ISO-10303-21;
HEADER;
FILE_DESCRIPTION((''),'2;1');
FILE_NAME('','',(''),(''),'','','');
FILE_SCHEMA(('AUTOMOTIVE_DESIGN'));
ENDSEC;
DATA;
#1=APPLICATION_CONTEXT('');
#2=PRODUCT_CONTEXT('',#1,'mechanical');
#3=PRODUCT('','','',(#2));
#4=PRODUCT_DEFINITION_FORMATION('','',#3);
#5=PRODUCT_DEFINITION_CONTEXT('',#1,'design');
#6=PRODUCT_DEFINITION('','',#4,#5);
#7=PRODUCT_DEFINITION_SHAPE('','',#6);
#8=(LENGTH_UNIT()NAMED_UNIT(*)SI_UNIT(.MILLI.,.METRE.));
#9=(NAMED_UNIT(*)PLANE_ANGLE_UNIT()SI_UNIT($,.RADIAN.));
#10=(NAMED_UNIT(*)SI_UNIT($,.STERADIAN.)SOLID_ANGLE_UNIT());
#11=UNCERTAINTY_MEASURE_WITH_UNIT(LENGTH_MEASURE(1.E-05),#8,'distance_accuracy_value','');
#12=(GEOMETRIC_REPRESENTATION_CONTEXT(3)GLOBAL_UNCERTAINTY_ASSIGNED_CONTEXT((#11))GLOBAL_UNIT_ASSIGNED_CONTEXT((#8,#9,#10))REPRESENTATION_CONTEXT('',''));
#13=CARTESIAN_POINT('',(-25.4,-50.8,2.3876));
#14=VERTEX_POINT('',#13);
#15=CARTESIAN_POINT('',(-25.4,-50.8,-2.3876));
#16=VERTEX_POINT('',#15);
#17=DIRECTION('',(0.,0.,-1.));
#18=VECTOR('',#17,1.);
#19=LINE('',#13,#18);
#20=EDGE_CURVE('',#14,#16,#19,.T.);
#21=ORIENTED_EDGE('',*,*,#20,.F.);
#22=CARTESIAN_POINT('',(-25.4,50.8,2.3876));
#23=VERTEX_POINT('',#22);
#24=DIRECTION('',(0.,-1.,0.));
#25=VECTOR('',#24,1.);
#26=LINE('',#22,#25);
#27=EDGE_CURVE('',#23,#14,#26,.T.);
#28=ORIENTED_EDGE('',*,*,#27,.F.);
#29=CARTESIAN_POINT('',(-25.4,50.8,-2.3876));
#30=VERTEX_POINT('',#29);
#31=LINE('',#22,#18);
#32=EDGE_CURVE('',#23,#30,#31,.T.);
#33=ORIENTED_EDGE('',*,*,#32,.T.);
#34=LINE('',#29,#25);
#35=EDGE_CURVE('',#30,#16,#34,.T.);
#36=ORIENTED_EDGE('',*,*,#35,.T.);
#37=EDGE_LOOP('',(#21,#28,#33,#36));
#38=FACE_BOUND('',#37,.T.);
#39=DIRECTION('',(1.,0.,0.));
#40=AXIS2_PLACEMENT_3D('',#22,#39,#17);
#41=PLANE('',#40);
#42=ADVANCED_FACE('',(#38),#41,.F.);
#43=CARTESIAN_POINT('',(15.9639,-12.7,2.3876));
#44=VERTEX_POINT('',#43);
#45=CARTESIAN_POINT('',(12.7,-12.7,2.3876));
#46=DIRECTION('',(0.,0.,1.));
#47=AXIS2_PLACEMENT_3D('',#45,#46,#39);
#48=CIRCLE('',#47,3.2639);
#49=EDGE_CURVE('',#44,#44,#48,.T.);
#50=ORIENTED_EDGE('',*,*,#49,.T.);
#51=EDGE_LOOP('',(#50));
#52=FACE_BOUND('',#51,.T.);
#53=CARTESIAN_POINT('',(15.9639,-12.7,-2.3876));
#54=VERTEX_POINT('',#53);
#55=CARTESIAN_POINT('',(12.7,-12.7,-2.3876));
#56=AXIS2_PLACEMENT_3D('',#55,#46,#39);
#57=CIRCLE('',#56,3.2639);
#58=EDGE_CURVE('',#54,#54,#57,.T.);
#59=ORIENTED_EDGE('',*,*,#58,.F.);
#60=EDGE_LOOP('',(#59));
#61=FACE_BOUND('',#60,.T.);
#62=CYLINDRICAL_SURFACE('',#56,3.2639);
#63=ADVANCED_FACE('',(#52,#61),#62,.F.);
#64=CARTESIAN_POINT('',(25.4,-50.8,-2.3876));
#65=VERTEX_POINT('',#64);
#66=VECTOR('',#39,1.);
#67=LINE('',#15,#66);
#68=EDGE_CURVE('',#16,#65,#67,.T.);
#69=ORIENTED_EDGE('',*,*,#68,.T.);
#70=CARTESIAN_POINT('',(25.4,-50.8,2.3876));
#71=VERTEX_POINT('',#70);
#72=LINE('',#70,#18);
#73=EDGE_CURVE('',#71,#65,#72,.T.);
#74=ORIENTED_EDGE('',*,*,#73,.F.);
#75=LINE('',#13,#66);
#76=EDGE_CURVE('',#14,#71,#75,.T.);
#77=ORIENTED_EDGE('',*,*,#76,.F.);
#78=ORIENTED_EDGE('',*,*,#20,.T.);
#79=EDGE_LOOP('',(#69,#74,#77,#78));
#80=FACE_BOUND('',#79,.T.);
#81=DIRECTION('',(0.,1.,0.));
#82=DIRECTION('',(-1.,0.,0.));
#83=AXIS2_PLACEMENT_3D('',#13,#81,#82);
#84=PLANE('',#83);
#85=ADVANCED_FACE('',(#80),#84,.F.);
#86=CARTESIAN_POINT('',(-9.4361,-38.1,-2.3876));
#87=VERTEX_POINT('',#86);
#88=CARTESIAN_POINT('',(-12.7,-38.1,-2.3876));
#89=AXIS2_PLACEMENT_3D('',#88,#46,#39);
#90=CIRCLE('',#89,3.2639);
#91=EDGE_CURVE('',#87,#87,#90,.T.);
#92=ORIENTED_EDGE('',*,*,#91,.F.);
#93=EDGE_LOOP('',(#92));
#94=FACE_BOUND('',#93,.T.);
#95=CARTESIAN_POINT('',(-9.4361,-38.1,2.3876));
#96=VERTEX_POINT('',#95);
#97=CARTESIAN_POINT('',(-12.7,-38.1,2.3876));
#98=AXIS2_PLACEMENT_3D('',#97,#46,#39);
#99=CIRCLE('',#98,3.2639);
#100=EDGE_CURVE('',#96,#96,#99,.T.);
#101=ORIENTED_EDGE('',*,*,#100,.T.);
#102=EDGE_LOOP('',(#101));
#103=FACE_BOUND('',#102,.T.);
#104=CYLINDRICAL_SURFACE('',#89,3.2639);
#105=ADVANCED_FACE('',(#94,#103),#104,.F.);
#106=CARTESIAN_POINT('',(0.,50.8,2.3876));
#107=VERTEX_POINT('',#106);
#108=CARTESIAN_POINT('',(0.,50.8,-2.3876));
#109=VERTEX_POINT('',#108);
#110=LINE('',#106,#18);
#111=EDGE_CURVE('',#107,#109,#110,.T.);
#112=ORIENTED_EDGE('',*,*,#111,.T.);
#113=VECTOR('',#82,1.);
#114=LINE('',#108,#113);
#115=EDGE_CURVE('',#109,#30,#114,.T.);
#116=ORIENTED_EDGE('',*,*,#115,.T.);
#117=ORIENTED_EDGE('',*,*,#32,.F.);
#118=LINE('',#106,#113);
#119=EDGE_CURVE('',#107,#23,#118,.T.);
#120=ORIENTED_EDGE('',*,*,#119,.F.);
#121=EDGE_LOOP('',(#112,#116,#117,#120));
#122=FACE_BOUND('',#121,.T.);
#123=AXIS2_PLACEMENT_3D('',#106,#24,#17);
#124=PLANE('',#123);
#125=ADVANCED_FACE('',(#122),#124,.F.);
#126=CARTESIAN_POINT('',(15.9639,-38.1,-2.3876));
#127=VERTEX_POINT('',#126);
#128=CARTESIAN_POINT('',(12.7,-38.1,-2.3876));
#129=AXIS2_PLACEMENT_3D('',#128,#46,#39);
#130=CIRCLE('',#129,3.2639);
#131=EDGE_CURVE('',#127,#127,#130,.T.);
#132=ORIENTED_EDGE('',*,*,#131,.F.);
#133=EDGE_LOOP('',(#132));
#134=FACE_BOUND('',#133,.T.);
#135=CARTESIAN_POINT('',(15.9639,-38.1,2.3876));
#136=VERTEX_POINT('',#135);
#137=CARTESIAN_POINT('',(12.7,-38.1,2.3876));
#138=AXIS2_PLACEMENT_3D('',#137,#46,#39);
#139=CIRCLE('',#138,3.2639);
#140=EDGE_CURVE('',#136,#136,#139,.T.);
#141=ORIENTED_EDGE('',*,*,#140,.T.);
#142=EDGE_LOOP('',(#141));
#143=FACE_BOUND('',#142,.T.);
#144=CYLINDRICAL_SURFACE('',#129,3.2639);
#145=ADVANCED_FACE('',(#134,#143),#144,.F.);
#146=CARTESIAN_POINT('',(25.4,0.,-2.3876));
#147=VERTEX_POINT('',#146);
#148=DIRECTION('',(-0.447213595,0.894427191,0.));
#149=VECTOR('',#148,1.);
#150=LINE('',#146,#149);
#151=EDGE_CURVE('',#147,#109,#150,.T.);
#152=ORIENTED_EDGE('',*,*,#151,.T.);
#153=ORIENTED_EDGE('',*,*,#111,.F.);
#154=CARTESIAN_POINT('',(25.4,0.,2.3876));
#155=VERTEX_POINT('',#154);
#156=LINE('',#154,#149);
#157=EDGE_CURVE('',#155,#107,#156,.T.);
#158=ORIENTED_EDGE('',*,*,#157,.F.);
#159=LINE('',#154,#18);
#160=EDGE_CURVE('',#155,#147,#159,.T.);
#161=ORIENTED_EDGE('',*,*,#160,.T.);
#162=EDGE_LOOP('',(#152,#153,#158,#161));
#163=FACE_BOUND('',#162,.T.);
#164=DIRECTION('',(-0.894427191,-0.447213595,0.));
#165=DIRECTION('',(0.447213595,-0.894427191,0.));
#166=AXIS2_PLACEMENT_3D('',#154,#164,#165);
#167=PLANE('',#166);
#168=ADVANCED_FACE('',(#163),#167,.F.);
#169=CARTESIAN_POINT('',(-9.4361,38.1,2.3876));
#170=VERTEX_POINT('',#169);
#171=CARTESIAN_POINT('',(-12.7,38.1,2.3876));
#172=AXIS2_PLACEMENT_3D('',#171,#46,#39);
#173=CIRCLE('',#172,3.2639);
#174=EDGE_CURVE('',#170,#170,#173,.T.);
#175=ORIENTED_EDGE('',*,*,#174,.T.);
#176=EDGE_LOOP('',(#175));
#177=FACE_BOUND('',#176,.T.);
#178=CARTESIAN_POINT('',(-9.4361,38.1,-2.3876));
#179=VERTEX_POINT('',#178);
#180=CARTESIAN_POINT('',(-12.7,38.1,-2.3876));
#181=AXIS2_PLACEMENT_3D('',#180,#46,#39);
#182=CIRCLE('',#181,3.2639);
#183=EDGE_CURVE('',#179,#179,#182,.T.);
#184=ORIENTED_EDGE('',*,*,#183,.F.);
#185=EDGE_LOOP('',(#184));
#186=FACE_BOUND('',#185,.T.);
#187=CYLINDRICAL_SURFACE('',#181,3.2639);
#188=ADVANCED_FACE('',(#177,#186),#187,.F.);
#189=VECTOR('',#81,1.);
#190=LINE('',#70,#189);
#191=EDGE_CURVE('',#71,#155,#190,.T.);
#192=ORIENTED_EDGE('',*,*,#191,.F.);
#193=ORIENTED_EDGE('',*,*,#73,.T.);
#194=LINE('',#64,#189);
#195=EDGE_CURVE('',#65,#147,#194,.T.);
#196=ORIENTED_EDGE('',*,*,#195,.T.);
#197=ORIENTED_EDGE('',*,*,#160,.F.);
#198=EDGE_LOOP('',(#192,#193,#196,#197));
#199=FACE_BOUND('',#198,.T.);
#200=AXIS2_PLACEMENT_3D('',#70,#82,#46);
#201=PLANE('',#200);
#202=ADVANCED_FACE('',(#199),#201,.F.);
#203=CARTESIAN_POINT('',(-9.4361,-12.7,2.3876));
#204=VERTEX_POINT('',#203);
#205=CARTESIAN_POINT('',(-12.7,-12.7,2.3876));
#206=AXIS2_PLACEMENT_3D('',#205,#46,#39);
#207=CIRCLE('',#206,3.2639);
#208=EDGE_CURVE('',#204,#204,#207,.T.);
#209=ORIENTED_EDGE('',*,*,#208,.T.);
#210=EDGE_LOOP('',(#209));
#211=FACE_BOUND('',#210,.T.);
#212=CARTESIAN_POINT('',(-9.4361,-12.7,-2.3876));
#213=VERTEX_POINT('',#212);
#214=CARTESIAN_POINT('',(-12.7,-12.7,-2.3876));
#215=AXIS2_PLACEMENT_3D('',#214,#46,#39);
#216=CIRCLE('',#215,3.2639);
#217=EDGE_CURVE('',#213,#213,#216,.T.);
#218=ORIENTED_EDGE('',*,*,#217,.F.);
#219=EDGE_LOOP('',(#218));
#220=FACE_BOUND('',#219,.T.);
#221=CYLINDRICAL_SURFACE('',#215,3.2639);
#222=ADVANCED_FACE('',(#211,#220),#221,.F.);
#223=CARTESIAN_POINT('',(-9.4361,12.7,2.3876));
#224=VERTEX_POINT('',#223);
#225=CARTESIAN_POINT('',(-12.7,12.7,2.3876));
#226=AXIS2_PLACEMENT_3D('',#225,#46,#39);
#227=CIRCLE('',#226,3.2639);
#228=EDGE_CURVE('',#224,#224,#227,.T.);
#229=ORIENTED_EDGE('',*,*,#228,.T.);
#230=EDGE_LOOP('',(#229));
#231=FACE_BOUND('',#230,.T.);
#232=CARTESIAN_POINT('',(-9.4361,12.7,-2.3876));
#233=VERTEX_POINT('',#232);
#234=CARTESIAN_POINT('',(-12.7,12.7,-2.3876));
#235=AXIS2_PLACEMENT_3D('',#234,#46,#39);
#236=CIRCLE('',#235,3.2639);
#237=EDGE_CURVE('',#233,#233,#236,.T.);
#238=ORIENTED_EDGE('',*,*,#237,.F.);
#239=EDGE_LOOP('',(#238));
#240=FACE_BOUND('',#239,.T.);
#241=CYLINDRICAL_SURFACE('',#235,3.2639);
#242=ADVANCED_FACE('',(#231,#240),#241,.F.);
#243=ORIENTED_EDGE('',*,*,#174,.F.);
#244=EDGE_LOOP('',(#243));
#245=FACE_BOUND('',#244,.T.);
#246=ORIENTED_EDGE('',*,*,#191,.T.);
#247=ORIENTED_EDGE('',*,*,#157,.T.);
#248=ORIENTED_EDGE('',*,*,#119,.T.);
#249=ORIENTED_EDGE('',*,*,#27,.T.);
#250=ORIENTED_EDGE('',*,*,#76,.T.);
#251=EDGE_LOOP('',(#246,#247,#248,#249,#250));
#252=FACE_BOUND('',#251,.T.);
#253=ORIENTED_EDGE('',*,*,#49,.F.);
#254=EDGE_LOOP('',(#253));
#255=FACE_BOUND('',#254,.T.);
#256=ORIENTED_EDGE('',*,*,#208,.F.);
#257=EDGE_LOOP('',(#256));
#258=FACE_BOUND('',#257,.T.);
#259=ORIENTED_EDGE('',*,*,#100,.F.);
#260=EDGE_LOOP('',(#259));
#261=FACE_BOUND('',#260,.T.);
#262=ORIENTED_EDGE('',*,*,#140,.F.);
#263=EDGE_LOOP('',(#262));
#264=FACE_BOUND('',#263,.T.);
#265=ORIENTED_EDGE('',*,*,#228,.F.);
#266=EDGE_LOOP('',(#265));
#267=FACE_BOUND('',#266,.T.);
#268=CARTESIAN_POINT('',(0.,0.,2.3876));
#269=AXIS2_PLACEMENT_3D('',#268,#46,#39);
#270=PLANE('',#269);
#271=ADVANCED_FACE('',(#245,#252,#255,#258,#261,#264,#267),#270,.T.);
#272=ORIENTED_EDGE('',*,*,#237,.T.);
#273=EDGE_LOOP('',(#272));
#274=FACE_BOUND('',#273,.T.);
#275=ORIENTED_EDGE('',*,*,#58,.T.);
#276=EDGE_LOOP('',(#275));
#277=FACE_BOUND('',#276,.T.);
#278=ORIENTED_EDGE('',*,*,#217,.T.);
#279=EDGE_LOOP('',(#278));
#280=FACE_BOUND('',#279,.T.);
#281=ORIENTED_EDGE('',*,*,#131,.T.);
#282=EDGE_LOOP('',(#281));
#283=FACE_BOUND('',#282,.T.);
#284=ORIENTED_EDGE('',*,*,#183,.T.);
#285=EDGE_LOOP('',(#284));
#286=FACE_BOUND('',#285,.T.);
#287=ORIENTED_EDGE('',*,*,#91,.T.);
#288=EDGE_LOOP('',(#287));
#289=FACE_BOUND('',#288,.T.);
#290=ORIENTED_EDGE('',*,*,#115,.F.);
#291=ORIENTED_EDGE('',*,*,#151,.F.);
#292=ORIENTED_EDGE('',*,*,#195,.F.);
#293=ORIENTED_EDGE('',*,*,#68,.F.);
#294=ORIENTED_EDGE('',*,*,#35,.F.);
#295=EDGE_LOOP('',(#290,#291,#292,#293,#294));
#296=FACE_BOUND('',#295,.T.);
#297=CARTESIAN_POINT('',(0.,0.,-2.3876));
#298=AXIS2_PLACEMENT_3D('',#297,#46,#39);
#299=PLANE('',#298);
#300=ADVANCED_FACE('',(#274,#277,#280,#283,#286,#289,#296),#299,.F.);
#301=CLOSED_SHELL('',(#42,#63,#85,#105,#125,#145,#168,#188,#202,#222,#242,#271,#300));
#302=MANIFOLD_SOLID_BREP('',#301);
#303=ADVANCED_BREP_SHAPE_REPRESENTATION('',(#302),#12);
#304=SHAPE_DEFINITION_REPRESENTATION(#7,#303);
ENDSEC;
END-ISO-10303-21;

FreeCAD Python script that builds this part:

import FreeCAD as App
import Part
import Sketcher

V = App.Vector
Q = App.Units.Quantity


def add_polygon(sketch, points):
    """Adds a closed chain of lines whose ends are joined by coincident constraints."""
    first, n = sketch.GeometryCount, len(points)
    for a, b in zip(points, points[1:] + points[:1]):
        sketch.addGeometry(Part.LineSegment(App.Vector(*a, 0), App.Vector(*b, 0)), False)
    for i in range(n):
        sketch.addConstraint(Sketcher.Constraint("Coincident", first + i, 2, first + (i + 1) % n, 1))

doc = App.newDocument("Part")
params = doc.addObject("Spreadsheet::Sheet", "Params")
for row, (alias, value) in enumerate([
    ("sketch1_width", "1 in"),
    ("pad1_length", "0.094 in"),
    ("pad1_length2", "0.094 in"),
    ("sketch2_diameter", "0.257 in"),
], start=1):
    params.set(f"A{row}", alias)
    params.set(f"B{row}", "=" + value)
    params.setAlias(f"B{row}", alias)

body = doc.addObject("PartDesign::Body", "Body")

# Sketch on XY plane
sketch1 = body.newObject("Sketcher::SketchObject", "Sketch")
sketch1.AttachmentSupport = (doc.getObject("XY_Plane"), [""])
sketch1.MapMode = "FlatFace"
add_polygon(sketch1, [(0, 51), (-25, 51), (-25, -51), (25, -51), (25, 0)])  # lines 0-4
sketch1.addConstraint(Sketcher.Constraint("Horizontal", 0))
sketch1.addConstraint(Sketcher.Constraint("Vertical", 1))
sketch1.addConstraint(Sketcher.Constraint("Horizontal", 2))
sketch1.addConstraint(Sketcher.Constraint("Vertical", 3))
sketch1.addConstraint(Sketcher.Constraint("Symmetric", 0, 2, 2, 2, -1, 1))
sketch1.addConstraint(Sketcher.Constraint("PointOnObject", 3, 2, -1))
sketch1.addConstraint(Sketcher.Constraint("PointOnObject", 4, 2, -2))
sketch1.addConstraint(Sketcher.Constraint("Equal", 2, 3))
sketch1.addConstraint(Sketcher.Constraint("DistanceX", 0, 2, 0, 1, Q("1 in")))
sketch1.setExpression("Constraints[13]", "Params.sketch1_width")
pad1 = body.newObject("PartDesign::Pad", "Pad")
pad1.Profile = sketch1
pad1.Type = "TwoLengths"
pad1.setExpression("Length", "Params.pad1_length")
pad1.setExpression("Length2", "Params.pad1_length2")

# Sketch on XY plane
sketch2 = body.newObject("Sketcher::SketchObject", "Sketch001")
sketch2.AttachmentSupport = (doc.getObject("XY_Plane"), [""])
sketch2.MapMode = "FlatFace"
sketch2.AttachmentOffset = App.Placement(V(0, 0, 0.094 * 25.4), App.Rotation())
sketch2.addGeometry(Part.Circle(V(-12.7, -38.1, 0), V(0, 0, 1), 3.3), False)
sketch2.addGeometry(Part.Circle(V(12.7, -38.1, 0), V(0, 0, 1), 3.3), False)
sketch2.addGeometry(Part.Circle(V(12.7, -12.7, 0), V(0, 0, 1), 3.3), False)
sketch2.addGeometry(Part.Circle(V(-12.7, -12.7, 0), V(0, 0, 1), 3.3), False)
sketch2.addGeometry(Part.Circle(V(-12.7, 12.7, 0), V(0, 0, 1), 3.3), False)
sketch2.addGeometry(Part.Circle(V(-12.7, 38.1, 0), V(0, 0, 1), 3.3), False)
sketch2.addConstraint(Sketcher.Constraint("Equal", 0, 1))
sketch2.addConstraint(Sketcher.Constraint("Equal", 1, 2))
sketch2.addConstraint(Sketcher.Constraint("Equal", 2, 3))
sketch2.addConstraint(Sketcher.Constraint("Equal", 3, 4))
sketch2.addConstraint(Sketcher.Constraint("Equal", 4, 5))
sketch2.addConstraint(Sketcher.Constraint("Symmetric", 2, 3, 4, 3, -1, 1))
sketch2.addConstraint(Sketcher.Constraint("Symmetric", 1, 3, 5, 3, -1, 1))
sketch2.addConstraint(Sketcher.Constraint("Symmetric", 0, 3, 1, 3, -2))
sketch2.addConstraint(Sketcher.Constraint("Symmetric", 2, 3, 3, 3, -2))
sketch2.addConstraint(Sketcher.Constraint("Vertical", 1, 3, 2, 3))
sketch2.addConstraint(Sketcher.Constraint("Diameter", 0, Q("0.257 in")))
sketch2.addConstraint(Sketcher.Constraint("DistanceX", 0, 3, 1, 3, Q("1 in")))
sketch2.addConstraint(Sketcher.Constraint("DistanceY", 1, 3, 2, 3, Q("1 in")))
sketch2.addConstraint(Sketcher.Constraint("DistanceY", 3, 3, 4, 3, Q("1 in")))
sketch2.setExpression("Constraints[10]", "Params.sketch2_diameter")
pocket1 = body.newObject("PartDesign::Pocket", "Pocket")
pocket1.Profile = sketch2
pocket1.Type = "ThroughAll"

doc.recompute()
